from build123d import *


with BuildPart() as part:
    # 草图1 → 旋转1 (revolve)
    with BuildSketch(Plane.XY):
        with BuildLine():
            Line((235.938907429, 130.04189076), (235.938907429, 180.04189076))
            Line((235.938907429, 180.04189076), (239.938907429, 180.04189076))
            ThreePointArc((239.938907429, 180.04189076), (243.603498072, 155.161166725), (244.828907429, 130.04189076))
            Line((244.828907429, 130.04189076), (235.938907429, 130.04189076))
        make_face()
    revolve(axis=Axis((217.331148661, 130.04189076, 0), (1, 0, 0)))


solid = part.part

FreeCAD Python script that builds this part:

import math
import FreeCAD as App
import Part
import Sketcher
Q = App.Units.Quantity

doc = App.newDocument("Part")
params = doc.addObject("Spreadsheet::Sheet", "Params")
for row, (alias, value) in enumerate([
    ("sketch1_width", "4 mm"),
    ("sketch1_height", "50 mm"),
    ("sketch1_width2", "8.89 mm"),
    ("revolution_angle", "360 deg"),
], start=1):
    params.set(f"A{row}", alias)
    params.set(f"B{row}", "=" + value)
    params.setAlias(f"B{row}", alias)

body = doc.addObject("PartDesign::Body", "Body")

sketch1 = body.newObject("Sketcher::SketchObject", "Sketch")
sketch1.AttachmentSupport = (doc.getObject("XY_Plane"), [""])
sketch1.MapMode = "FlatFace"
sketch1.addGeometry(Part.LineSegment(App.Vector(235.938907, 180.041891, 0), App.Vector(235.938907, 130.041891, 0)), False)
sketch1.addGeometry(Part.LineSegment(App.Vector(235.938907, 130.041891, 0), App.Vector(244.828907, 130.041891, 0)), False)
sketch1.addGeometry(Part.ArcOfCircle(Part.Circle(App.Vector(-13.239814, 130.041891, 0), App.Vector(0, 0, 1), 258.068722), math.radians(0), math.radians(11.171527)), False)
sketch1.addGeometry(Part.LineSegment(App.Vector(239.938907, 180.041891, 0), App.Vector(235.938907, 180.041891, 0)), False)
sketch1.addGeometry(Part.LineSegment(App.Vector(-13.239814, 130.041891, 0), App.Vector(244.828907, 130.041891, 0)), True)
sketch1.addConstraint(Sketcher.Constraint("Coincident", 0, 2, 1, 1))
sketch1.addConstraint(Sketcher.Constraint("Coincident", 1, 2, 2, 1))
sketch1.addConstraint(Sketcher.Constraint("Coincident", 2, 2, 3, 1))
sketch1.addConstraint(Sketcher.Constraint("Coincident", 3, 2, 0, 1))
sketch1.addConstraint(Sketcher.Constraint("Vertical", 0))
sketch1.addConstraint(Sketcher.Constraint("Horizontal", 1))
sketch1.addConstraint(Sketcher.Constraint("Horizontal", 3))
sketch1.addConstraint(Sketcher.Constraint("Horizontal", 4))
sketch1.addConstraint(Sketcher.Constraint("Coincident", 4, 1, 2, 3))
sketch1.addConstraint(Sketcher.Constraint("Coincident", 4, 2, 1, 2))
sketch1.addConstraint(Sketcher.Constraint("DistanceX", 3, 2, 3, 1, Q("4 mm")))
sketch1.addConstraint(Sketcher.Constraint("DistanceY", 0, 2, 0, 1, Q("50 mm")))
sketch1.addConstraint(Sketcher.Constraint("DistanceX", 1, 1, 1, 2, Q("8.89 mm")))
sketch1.addConstraint(Sketcher.Constraint("DistanceY", -1, 1, 2, 3, Q("130.041891 mm")))
sketch1.addConstraint(Sketcher.Constraint("DistanceX", 2, 3, -1, 1, Q("13.239814 mm")))
sketch1.setExpression("Constraints[10]", "Params.sketch1_width")
sketch1.setExpression("Constraints[11]", "Params.sketch1_height")
sketch1.setExpression("Constraints[12]", "Params.sketch1_width2")
revolution = body.newObject("PartDesign::Revolution", "Revolution")
revolution.Profile = sketch1
revolution.ReferenceAxis = (sketch1, ["Axis0"])
revolution.setExpression("Angle", "Params.revolution_angle")

doc.recompute()
